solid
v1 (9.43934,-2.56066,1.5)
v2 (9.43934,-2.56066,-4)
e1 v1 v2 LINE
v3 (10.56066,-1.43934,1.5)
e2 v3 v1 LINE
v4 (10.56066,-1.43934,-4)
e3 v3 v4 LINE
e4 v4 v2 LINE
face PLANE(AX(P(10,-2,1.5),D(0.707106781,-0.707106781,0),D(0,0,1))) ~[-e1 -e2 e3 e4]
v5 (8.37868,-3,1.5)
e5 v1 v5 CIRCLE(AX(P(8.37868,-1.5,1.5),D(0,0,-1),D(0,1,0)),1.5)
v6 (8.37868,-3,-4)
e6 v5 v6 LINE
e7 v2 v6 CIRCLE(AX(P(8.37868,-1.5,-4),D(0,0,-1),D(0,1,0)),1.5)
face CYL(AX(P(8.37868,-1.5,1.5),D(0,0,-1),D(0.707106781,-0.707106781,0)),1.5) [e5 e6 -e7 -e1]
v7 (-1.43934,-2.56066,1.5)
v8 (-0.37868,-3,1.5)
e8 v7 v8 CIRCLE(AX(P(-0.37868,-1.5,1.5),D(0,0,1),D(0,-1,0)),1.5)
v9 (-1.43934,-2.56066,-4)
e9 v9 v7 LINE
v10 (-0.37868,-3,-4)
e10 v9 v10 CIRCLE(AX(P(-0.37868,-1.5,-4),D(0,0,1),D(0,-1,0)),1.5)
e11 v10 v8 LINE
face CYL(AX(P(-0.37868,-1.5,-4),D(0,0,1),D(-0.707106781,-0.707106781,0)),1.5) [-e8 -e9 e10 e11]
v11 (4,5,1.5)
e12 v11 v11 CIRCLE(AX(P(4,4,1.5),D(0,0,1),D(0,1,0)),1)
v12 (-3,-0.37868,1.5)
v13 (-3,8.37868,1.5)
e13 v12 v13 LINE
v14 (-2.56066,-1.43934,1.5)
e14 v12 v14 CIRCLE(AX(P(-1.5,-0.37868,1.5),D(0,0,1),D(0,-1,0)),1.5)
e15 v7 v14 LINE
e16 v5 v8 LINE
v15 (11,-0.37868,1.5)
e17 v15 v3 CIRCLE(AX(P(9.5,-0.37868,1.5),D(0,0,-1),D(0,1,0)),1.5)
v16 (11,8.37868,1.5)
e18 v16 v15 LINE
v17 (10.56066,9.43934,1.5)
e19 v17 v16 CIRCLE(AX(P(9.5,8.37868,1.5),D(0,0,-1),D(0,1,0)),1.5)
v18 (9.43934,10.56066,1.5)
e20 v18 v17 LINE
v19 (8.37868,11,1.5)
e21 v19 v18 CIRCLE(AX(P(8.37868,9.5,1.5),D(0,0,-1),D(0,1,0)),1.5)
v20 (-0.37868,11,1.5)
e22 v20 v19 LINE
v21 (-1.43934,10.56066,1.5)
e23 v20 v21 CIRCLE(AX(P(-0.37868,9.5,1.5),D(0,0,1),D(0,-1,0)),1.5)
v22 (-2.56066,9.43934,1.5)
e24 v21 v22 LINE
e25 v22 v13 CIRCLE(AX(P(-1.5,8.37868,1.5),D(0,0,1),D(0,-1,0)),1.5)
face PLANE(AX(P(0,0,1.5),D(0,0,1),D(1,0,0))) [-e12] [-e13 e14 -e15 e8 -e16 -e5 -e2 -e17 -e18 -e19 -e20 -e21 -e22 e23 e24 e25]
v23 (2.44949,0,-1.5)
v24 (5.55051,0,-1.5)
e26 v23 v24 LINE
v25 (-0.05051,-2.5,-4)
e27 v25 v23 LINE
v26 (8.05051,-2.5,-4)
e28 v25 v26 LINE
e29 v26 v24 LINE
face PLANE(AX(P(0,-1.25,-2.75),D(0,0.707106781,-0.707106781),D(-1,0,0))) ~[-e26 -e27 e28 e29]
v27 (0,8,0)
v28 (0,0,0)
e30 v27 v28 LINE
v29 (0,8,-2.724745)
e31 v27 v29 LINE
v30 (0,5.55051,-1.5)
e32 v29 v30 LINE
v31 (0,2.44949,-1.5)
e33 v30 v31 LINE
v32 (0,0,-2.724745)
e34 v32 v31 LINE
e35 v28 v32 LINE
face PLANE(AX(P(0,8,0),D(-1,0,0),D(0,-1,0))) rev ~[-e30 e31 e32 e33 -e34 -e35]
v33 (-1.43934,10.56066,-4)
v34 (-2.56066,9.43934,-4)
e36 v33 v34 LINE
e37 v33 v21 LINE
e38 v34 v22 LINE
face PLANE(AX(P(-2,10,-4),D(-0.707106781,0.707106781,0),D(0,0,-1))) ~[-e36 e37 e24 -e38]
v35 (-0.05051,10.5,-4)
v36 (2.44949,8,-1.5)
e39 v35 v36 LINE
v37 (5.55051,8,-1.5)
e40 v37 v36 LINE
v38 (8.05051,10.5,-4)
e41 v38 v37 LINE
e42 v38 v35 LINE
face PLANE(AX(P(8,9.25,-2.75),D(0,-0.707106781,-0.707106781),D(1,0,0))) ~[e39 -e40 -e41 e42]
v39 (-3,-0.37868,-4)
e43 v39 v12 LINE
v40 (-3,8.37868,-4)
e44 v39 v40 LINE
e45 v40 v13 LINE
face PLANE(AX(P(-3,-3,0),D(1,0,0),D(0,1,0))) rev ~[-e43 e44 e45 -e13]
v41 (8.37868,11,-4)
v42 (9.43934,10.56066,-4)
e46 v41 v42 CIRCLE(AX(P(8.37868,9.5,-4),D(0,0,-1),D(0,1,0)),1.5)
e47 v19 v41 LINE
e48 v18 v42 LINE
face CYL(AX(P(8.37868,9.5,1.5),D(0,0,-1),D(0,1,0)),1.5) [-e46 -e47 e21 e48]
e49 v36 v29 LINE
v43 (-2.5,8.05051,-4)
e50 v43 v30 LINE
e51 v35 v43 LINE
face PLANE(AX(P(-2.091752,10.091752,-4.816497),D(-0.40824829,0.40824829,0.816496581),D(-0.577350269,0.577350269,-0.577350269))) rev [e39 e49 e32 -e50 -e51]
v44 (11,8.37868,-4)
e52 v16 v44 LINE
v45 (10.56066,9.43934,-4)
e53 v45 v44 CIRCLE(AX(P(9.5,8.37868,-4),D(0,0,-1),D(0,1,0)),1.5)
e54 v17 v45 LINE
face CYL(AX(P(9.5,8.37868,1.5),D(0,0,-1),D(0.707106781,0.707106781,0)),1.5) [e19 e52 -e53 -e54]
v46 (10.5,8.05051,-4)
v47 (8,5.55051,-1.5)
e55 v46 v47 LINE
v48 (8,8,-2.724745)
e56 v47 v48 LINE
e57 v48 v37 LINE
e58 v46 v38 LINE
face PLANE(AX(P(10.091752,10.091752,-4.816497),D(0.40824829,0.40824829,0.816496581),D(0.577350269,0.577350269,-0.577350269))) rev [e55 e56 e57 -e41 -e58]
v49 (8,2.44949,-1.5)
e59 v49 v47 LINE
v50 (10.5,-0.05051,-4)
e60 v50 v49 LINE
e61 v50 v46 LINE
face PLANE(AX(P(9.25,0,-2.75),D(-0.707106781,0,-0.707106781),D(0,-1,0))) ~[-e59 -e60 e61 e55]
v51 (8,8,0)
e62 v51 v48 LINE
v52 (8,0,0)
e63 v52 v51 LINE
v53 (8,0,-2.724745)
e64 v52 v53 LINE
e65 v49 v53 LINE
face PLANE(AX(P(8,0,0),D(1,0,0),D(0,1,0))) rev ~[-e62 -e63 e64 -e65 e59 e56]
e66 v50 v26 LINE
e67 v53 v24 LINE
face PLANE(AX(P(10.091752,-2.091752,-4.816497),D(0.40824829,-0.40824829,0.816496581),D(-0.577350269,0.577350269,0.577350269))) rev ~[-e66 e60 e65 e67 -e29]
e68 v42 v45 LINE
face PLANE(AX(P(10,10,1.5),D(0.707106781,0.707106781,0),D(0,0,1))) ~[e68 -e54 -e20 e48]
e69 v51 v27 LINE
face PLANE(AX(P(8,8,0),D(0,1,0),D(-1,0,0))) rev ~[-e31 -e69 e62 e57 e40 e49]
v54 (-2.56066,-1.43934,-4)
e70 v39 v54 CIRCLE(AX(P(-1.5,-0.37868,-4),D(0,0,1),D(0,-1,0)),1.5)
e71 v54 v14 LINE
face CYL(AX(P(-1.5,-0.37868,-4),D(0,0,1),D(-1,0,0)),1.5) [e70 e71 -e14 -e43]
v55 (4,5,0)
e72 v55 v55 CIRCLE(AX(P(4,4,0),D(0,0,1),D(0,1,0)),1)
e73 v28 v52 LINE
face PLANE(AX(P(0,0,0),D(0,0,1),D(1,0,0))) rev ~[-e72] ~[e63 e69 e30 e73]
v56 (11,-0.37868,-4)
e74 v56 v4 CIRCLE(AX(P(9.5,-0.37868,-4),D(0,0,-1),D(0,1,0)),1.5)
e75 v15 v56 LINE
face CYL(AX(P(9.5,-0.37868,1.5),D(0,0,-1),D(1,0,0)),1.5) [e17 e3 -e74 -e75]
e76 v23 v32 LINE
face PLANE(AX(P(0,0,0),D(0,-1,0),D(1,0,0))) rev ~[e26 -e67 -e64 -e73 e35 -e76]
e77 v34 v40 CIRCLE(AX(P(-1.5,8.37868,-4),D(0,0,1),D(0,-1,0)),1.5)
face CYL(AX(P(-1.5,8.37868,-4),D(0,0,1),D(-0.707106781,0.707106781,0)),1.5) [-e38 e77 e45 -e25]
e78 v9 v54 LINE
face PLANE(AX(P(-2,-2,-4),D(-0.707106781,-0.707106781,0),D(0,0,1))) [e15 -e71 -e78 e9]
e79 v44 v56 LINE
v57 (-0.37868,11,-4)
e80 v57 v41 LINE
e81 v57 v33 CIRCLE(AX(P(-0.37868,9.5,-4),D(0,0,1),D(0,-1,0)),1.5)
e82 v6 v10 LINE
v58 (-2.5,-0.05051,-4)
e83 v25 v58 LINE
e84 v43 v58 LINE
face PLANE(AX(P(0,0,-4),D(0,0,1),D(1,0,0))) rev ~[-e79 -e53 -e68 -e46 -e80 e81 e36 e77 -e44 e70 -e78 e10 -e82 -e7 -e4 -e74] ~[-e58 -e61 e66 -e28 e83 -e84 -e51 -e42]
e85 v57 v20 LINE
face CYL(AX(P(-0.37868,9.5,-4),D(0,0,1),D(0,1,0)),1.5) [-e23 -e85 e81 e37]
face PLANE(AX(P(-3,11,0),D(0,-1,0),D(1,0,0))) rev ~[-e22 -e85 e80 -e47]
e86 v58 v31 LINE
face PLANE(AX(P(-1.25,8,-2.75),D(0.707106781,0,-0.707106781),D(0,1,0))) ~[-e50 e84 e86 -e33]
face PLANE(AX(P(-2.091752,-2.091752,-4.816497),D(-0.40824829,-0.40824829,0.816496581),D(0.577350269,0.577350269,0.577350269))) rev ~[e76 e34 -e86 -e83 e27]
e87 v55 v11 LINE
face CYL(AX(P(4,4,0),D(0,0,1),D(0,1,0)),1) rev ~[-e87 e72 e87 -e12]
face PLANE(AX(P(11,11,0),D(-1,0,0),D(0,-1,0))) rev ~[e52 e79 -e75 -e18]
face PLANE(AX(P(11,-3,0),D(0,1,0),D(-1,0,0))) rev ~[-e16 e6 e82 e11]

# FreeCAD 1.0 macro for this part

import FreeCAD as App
import Part
import Sketcher
Q = App.Units.Quantity


def edges_at(feature, points):
    """Names of the edges that pass closest to the given points."""
    edges = feature.Shape.Edges
    near = lambda p: min(range(len(edges)), key=lambda i: edges[i].distToShape(Part.Vertex(*p))[0])
    return sorted({f"Edge{near(p) + 1}" for p in points})

doc = App.newDocument("Part")
body = doc.addObject("PartDesign::Body", "Body")

sketch1 = doc.addObject("Sketcher::SketchObject", "Sketch")
body.addObject(sketch1)
sketch1.AttachmentSupport = (doc.XY_Plane, [""])
sketch1.MapMode = "FlatFace"
sketch1.addGeometry([
    Part.LineSegment(App.Vector(11, 11, 0), App.Vector(-3, 11, 0)),
    Part.LineSegment(App.Vector(-3, 11, 0), App.Vector(-3, -3, 0)),
    Part.LineSegment(App.Vector(-3, -3, 0), App.Vector(11, -3, 0)),
    Part.LineSegment(App.Vector(11, -3, 0), App.Vector(11, 11, 0)),
], False)
sketch1.addConstraint([
    Sketcher.Constraint("Coincident", 0, 2, 1, 1),
    Sketcher.Constraint("Coincident", 1, 2, 2, 1),
    Sketcher.Constraint("Coincident", 2, 2, 3, 1),
    Sketcher.Constraint("Coincident", 3, 2, 0, 1),
    Sketcher.Constraint("Horizontal", 0),
    Sketcher.Constraint("Vertical", 1),
    Sketcher.Constraint("Horizontal", 2),
    Sketcher.Constraint("Vertical", 3),
    Sketcher.Constraint("Equal", 2, 1),
    Sketcher.Constraint("DistanceX", 0, 2, -1, 1, Q("3 mm")),
    Sketcher.Constraint("DistanceY", 1, 2, -1, 1, Q("3 mm")),
    Sketcher.Constraint("DistanceX", 0, 2, 0, 1, Q("14 mm")),
])
pad1 = doc.addObject("PartDesign::Pad", "Pad")
body.addObject(pad1)
pad1.Profile = sketch1
pad1.Length = 1.5

sketch2 = doc.addObject("Sketcher::SketchObject", "Sketch001")
body.addObject(sketch2)
sketch2.AttachmentSupport = (doc.XY_Plane, [""])
sketch2.MapMode = "FlatFace"
sketch2.addGeometry([
    Part.LineSegment(App.Vector(11, 11, 0), App.Vector(-3, 11, 0)),
    Part.LineSegment(App.Vector(-3, 11, 0), App.Vector(-3, -3, 0)),
    Part.LineSegment(App.Vector(-3, -3, 0), App.Vector(11, -3, 0)),
    Part.LineSegment(App.Vector(11, -3, 0), App.Vector(11, 11, 0)),
    Part.LineSegment(App.Vector(8, 0, 0), App.Vector(0, 0, 0)),
    Part.LineSegment(App.Vector(0, 0, 0), App.Vector(0, 8, 0)),
    Part.LineSegment(App.Vector(0, 8, 0), App.Vector(8, 8, 0)),
    Part.LineSegment(App.Vector(8, 8, 0), App.Vector(8, 0, 0)),
], False)
sketch2.addConstraint([
    Sketcher.Constraint("Coincident", 0, 2, 1, 1),
    Sketcher.Constraint("Coincident", 1, 2, 2, 1),
    Sketcher.Constraint("Coincident", 2, 2, 3, 1),
    Sketcher.Constraint("Coincident", 3, 2, 0, 1),
    Sketcher.Constraint("Coincident", 4, 2, 5, 1),
    Sketcher.Constraint("Coincident", 5, 2, 6, 1),
    Sketcher.Constraint("Coincident", 6, 2, 7, 1),
    Sketcher.Constraint("Coincident", 7, 2, 4, 1),
    Sketcher.Constraint("Horizontal", 0),
    Sketcher.Constraint("Vertical", 1),
    Sketcher.Constraint("Horizontal", 2),
    Sketcher.Constraint("Vertical", 3),
    Sketcher.Constraint("Horizontal", 4),
    Sketcher.Constraint("Vertical", 5),
    Sketcher.Constraint("Horizontal", 6),
    Sketcher.Constraint("Vertical", 7),
    Sketcher.Constraint("Coincident", 4, 2, -1, 1),
    Sketcher.Constraint("Equal", 2, 1),
    Sketcher.Constraint("Equal", 6, 5),
    Sketcher.Constraint("DistanceX", 4, 2, 4, 1, Q("8 mm")),
    Sketcher.Constraint("DistanceX", 0, 2, -1, 1, Q("3 mm")),
    Sketcher.Constraint("DistanceY", 1, 2, -1, 1, Q("3 mm")),
    Sketcher.Constraint("DistanceY", 5, 2, 0, 2, Q("3 mm")),
])
pad2 = doc.addObject("PartDesign::Pad", "Pad001")
body.addObject(pad2)
pad2.Profile = sketch2
pad2.Length = 4
pad2.Reversed = True
doc.recompute()

chamfer = doc.addObject("PartDesign::Chamfer", "Chamfer")
body.addObject(chamfer)
chamfer.Base = (pad2, edges_at(pad2, [
    (8, 4, -4),
    (4, 0, -4),
    (4, 8, -4),
    (0, 4, -4),
]))
chamfer.Size = 2.5

sketch3 = doc.addObject("Sketcher::SketchObject", "Sketch002")
body.addObject(sketch3)
sketch3.AttachmentSupport = (doc.XY_Plane, [""])
sketch3.MapMode = "FlatFace"
sketch3.addGeometry(Part.Circle(App.Vector(4, 4, 0), App.Vector(0, 0, 1), 1), False)
sketch3.addConstraint([
    Sketcher.Constraint("Diameter", 0, Q("2 mm")),
    Sketcher.Constraint("DistanceX", -1, 1, 0, 3, Q("4 mm")),
    Sketcher.Constraint("DistanceY", -1, 1, 0, 3, Q("4 mm")),
])
doc.recompute()
hole = doc.addObject("PartDesign::Hole", "Hole")
body.addObject(hole)
hole.Profile = sketch3
hole.ThreadType = "None"
hole.Diameter = 2
hole.DepthType = "Dimension"
hole.Depth = 8
hole.DrillPoint = "Angled"
hole.DrillPointAngle = 118
hole.Reversed = True
doc.recompute()

chamfer2 = doc.addObject("PartDesign::Chamfer", "Chamfer001")
body.addObject(chamfer2)
chamfer2.Base = (hole, edges_at(hole, [
    (9.25, 9.25, -2.75),
    (-1.25, 9.25, -2.75),
    (-1.25, -1.25, -2.75),
    (9.25, -1.25, -2.75),
    (11, -3, -1.25),
    (11, 11, -1.25),
    (-3, -3, -1.25),
    (-3, 11, -1.25),
]))
chamfer2.Size = 2
doc.recompute()

fillet = doc.addObject("PartDesign::Fillet", "Fillet")
body.addObject(fillet)
fillet.Base = (chamfer2, edges_at(chamfer2, [
    (11, 9, -1.25),
    (9, 11, -1.25),
    (11, -1, -1.25),
    (9, -3, -1.25),
    (-1, -3, -1.25),
    (-3, -1, -1.25),
    (-1, 11, -1.25),
    (-3, 9, -1.25),
]))
fillet.Radius = 1.5

doc.recompute()
